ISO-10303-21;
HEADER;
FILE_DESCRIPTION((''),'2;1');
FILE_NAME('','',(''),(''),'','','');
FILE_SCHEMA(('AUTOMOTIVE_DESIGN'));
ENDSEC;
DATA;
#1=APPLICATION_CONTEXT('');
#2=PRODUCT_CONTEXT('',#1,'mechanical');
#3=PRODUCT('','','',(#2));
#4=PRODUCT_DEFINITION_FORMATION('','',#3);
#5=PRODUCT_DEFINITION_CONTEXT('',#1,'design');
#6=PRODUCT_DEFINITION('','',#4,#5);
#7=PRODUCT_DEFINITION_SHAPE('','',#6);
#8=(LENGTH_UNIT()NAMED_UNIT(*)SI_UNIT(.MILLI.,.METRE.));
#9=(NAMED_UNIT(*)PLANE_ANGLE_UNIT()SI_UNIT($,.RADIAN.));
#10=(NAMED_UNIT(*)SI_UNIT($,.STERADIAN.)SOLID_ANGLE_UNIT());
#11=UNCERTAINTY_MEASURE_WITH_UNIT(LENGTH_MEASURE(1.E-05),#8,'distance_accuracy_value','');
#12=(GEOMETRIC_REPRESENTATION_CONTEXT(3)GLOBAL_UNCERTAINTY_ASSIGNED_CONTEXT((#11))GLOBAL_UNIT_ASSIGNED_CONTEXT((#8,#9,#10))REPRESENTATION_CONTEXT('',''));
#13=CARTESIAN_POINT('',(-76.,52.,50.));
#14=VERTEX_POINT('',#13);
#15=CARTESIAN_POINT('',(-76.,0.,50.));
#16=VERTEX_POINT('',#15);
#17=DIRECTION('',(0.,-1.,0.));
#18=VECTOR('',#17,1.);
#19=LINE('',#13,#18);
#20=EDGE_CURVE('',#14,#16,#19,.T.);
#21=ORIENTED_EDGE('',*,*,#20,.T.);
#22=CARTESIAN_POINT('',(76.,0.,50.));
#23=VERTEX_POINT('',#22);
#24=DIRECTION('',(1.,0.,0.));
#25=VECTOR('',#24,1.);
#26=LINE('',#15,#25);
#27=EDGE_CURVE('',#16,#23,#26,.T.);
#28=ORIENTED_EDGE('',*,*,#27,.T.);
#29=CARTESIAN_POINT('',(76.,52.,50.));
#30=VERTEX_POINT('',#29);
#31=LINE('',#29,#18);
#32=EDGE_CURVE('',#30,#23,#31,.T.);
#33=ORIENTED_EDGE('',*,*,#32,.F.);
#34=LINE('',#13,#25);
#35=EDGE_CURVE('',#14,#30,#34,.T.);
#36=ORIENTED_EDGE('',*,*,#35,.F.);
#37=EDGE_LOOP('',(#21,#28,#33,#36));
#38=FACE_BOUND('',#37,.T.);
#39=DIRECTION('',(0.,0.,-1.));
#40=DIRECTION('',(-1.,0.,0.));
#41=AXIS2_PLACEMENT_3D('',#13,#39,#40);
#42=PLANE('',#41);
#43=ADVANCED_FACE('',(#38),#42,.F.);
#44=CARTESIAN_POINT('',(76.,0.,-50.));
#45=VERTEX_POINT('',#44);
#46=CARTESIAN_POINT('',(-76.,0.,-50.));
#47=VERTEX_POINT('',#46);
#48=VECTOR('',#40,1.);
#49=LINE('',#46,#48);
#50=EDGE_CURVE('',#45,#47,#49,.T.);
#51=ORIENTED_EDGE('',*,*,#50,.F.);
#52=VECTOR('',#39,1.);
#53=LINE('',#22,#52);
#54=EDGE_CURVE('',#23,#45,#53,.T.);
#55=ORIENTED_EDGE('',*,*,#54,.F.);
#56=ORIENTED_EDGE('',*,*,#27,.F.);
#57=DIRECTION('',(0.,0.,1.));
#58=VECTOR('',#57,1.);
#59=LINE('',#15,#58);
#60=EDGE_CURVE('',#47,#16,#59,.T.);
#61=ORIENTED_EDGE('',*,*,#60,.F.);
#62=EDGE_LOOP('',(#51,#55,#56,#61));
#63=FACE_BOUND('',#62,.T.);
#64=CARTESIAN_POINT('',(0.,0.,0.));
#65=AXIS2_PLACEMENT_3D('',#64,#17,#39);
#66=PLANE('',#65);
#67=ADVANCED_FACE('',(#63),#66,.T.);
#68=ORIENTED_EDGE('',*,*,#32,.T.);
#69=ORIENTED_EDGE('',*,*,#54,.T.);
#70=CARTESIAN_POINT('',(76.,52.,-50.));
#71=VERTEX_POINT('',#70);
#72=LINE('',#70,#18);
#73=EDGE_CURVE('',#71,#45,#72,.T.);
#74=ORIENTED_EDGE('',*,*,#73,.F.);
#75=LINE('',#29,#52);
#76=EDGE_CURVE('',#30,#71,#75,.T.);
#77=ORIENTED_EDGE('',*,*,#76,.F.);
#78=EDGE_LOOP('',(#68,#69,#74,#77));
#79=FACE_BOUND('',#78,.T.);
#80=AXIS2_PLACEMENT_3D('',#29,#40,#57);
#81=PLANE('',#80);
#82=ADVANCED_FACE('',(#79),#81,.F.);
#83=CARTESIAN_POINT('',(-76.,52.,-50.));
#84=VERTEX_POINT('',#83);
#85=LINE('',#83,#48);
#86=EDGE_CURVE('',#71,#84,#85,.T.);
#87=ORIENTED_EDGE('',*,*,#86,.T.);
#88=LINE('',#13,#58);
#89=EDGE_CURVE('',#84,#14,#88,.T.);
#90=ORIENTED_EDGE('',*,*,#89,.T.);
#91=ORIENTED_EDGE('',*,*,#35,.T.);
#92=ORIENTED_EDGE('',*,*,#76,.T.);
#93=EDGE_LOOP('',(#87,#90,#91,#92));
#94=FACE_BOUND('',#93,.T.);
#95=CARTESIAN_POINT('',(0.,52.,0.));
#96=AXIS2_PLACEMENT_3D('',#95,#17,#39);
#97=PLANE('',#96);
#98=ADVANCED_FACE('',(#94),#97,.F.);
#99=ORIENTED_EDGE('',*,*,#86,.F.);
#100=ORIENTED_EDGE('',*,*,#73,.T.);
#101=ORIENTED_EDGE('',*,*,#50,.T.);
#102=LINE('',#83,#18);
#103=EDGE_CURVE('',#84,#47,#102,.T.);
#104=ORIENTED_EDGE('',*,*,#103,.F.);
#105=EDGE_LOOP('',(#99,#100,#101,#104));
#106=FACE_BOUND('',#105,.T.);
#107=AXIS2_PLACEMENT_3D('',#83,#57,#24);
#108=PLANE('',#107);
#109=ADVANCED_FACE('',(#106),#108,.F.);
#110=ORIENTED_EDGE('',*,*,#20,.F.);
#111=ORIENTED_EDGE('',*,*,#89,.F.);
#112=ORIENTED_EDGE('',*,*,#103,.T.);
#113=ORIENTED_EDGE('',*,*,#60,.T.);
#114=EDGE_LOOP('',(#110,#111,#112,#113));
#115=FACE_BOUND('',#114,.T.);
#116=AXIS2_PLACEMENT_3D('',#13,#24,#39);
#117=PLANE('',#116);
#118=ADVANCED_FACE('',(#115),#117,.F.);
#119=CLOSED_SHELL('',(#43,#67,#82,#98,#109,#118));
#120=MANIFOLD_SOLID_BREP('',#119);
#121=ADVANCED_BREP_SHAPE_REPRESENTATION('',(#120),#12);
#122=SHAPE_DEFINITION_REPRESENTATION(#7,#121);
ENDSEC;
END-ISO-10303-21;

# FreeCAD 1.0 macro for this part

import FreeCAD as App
import Part
import Sketcher


def add_polygon(sketch, points):
    """Adds a closed chain of lines whose ends are joined by coincident constraints."""
    first, n = sketch.GeometryCount, len(points)
    for a, b in zip(points, points[1:] + points[:1]):
        sketch.addGeometry(Part.LineSegment(App.Vector(*a, 0), App.Vector(*b, 0)), False)
    for i in range(n):
        sketch.addConstraint(Sketcher.Constraint("Coincident", first + i, 2, first + (i + 1) % n, 1))

doc = App.newDocument("Part")
params = doc.addObject("Spreadsheet::Sheet", "Params")
for row, (alias, value) in enumerate([
    ("sketch1_width", "152 mm"),
    ("sketch1_height", "100 mm"),
    ("pad1_length", "52 mm"),
], start=1):
    params.set(f"A{row}", alias)
    params.set(f"B{row}", "=" + value)
    params.setAlias(f"B{row}", alias)

body = doc.addObject("PartDesign::Body", "Body")

# Sketch on XZ plane
sketch1 = doc.addObject("Sketcher::SketchObject", "Sketch")
body.addObject(sketch1)
sketch1.AttachmentSupport = (doc.XZ_Plane, [""])
sketch1.MapMode = "FlatFace"
add_polygon(sketch1, [(-76, -50), (-76, 50), (76, 50), (76, -50)])  # lines 0-3
sketch1.addConstraint(Sketcher.Constraint("Vertical", 0))
sketch1.addConstraint(Sketcher.Constraint("Horizontal", 1))
sketch1.addConstraint(Sketcher.Constraint("Vertical", 2))
sketch1.addConstraint(Sketcher.Constraint("Horizontal", 3))
sketch1.addConstraint(Sketcher.Constraint("Symmetric", 0, 2, 2, 2, -1, 1))
sketch1.addConstraint(Sketcher.Constraint("DistanceX", 1, 1, 1, 2, 152.0))
sketch1.addConstraint(Sketcher.Constraint("DistanceY", 0, 1, 0, 2, 100.0))
sketch1.setExpression("Constraints[9]", "Params.sketch1_width")
sketch1.setExpression("Constraints[10]", "Params.sketch1_height")
pad1 = doc.addObject("PartDesign::Pad", "Pad")
body.addObject(pad1)
pad1.Profile = sketch1
pad1.setExpression("Length", "Params.pad1_length")
pad1.Reversed = True

doc.recompute()
